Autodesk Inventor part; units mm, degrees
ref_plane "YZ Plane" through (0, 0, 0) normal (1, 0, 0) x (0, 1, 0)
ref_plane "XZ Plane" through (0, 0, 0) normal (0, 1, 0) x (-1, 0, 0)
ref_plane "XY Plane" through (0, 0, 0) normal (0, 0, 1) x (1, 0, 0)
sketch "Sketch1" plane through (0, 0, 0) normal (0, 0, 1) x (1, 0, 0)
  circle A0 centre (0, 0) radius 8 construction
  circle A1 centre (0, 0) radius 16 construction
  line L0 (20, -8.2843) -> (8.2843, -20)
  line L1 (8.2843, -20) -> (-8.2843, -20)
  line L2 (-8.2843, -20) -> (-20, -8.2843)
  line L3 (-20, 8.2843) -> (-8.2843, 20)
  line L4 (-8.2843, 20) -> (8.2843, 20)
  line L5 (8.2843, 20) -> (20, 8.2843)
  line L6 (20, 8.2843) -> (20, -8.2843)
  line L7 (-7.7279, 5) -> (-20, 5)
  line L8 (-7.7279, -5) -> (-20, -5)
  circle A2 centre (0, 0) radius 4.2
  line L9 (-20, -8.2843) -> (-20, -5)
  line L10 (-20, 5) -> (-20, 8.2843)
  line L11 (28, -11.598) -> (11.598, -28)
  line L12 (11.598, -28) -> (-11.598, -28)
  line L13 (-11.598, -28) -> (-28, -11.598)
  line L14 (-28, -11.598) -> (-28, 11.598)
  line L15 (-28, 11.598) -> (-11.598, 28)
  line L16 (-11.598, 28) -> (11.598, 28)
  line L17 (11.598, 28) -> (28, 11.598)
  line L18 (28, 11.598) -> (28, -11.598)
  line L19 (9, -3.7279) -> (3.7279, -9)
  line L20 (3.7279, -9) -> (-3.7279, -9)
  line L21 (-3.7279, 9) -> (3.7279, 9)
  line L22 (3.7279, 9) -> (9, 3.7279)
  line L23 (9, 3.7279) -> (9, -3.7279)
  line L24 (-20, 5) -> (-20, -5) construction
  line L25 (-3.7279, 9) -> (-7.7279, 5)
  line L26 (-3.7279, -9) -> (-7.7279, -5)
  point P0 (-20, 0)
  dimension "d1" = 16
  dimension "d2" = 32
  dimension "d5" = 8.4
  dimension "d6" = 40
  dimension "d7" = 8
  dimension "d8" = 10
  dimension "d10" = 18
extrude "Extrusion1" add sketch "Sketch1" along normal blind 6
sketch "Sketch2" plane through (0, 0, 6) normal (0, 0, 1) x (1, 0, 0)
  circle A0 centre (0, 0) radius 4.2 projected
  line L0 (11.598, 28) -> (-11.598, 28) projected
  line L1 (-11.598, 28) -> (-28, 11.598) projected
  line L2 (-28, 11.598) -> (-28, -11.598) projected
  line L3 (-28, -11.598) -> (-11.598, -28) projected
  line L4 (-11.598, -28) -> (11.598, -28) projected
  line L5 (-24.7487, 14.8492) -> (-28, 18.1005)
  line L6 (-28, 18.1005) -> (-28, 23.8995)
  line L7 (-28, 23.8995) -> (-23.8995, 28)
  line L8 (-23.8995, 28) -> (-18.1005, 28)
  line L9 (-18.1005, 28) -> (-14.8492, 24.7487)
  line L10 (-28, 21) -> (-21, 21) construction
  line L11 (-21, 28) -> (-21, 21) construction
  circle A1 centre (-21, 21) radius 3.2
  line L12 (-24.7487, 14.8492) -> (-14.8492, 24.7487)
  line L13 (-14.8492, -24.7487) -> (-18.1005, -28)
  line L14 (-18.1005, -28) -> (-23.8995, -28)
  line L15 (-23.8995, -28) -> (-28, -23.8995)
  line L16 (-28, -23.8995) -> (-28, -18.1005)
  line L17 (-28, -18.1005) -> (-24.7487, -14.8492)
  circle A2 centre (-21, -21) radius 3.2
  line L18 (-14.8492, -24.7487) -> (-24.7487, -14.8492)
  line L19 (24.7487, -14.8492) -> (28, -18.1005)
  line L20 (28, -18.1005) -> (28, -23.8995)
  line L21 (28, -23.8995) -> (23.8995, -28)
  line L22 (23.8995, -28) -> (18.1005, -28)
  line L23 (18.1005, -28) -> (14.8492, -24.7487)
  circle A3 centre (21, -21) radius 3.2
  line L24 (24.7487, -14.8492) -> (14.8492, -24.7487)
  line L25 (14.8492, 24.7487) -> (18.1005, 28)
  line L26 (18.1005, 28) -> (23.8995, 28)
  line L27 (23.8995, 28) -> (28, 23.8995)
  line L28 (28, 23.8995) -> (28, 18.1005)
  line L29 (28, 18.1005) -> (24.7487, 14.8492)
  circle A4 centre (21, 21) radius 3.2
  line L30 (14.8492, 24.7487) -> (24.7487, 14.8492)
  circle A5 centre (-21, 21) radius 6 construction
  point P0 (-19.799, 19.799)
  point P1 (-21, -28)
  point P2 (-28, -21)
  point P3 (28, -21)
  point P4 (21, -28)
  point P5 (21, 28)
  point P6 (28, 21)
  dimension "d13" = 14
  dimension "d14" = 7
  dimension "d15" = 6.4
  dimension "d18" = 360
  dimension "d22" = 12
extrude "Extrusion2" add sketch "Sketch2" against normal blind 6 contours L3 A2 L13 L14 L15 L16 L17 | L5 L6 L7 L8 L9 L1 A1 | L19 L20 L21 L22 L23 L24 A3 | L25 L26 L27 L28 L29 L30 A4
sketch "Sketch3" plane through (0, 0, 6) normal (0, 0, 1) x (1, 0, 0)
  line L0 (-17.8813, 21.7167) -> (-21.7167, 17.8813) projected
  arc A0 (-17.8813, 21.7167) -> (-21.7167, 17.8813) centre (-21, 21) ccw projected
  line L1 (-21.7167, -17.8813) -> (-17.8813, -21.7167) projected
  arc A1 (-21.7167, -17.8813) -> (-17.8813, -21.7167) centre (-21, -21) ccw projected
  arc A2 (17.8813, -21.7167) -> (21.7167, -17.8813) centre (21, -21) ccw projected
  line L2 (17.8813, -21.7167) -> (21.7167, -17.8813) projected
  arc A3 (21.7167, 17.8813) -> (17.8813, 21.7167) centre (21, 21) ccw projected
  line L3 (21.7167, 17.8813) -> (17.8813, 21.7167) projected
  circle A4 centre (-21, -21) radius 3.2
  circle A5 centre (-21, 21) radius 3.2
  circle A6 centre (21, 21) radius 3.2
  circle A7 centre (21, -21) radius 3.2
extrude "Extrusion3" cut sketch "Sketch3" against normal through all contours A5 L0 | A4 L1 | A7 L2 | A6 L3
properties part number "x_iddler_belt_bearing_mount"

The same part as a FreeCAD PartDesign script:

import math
import FreeCAD as App
import Part
import Sketcher

V = App.Vector
Q = App.Units.Quantity

doc = App.newDocument("Part")
body = doc.addObject("PartDesign::Body", "Body")

sketch1 = body.newObject("Sketcher::SketchObject", "Sketch")
sketch1.AttachmentSupport = (doc.getObject("XY_Plane"), [""])
sketch1.MapMode = "FlatFace"
sketch1.addGeometry([
    Part.LineSegment(V(11.6, -28, 0), V(28, -11.6, 0)),
    Part.LineSegment(V(28, -11.6, 0), V(28, 11.6, 0)),
    Part.LineSegment(V(28, 11.6, 0), V(11.6, 28, 0)),
    Part.LineSegment(V(11.6, 28, 0), V(-11.6, 28, 0)),
    Part.LineSegment(V(-11.6, 28, 0), V(-28, 11.6, 0)),
    Part.LineSegment(V(-28, 11.6, 0), V(-28, -11.6, 0)),
    Part.LineSegment(V(-28, -11.6, 0), V(-11.6, -28, 0)),
    Part.LineSegment(V(-11.6, -28, 0), V(11.6, -28, 0)),
    Part.LineSegment(V(20, 8.3, 0), V(20, -8.3, 0)),
    Part.LineSegment(V(20, -8.3, 0), V(8.3, -20, 0)),
    Part.LineSegment(V(8.3, -20, 0), V(-8.3, -20, 0)),
    Part.LineSegment(V(-8.3, -20, 0), V(-20, -8.3, 0)),
    Part.LineSegment(V(-20, -8.3, 0), V(-20, -5, 0)),
    Part.LineSegment(V(-20, -5, 0), V(-7.7, -5, 0)),
    Part.LineSegment(V(-7.7, -5, 0), V(-3.7, -9, 0)),
    Part.LineSegment(V(-3.7, -9, 0), V(3.7, -9, 0)),
    Part.LineSegment(V(3.7, -9, 0), V(9, -3.7, 0)),
    Part.LineSegment(V(9, -3.7, 0), V(9, 3.7, 0)),
    Part.LineSegment(V(9, 3.7, 0), V(3.7, 9, 0)),
    Part.LineSegment(V(3.7, 9, 0), V(-3.7, 9, 0)),
    Part.LineSegment(V(-3.7, 9, 0), V(-7.7, 5, 0)),
    Part.LineSegment(V(-7.7, 5, 0), V(-20, 5, 0)),
    Part.LineSegment(V(-20, 5, 0), V(-20, 8.3, 0)),
    Part.LineSegment(V(-20, 8.3, 0), V(-8.3, 20, 0)),
    Part.LineSegment(V(-8.3, 20, 0), V(8.3, 20, 0)),
    Part.LineSegment(V(8.3, 20, 0), V(20, 8.3, 0)),
    Part.Circle(V(0, 0, 0), V(0, 0, 1), 4.2),
], False)
sketch1.addConstraint([
    Sketcher.Constraint("Coincident", 0, 2, 1, 1),
    Sketcher.Constraint("Coincident", 1, 2, 2, 1),
    Sketcher.Constraint("Coincident", 2, 2, 3, 1),
    Sketcher.Constraint("Coincident", 3, 2, 4, 1),
    Sketcher.Constraint("Coincident", 4, 2, 5, 1),
    Sketcher.Constraint("Coincident", 5, 2, 6, 1),
    Sketcher.Constraint("Coincident", 6, 2, 7, 1),
    Sketcher.Constraint("Coincident", 7, 2, 0, 1),
    Sketcher.Constraint("Coincident", 8, 2, 9, 1),
    Sketcher.Constraint("Coincident", 9, 2, 10, 1),
    Sketcher.Constraint("Coincident", 10, 2, 11, 1),
    Sketcher.Constraint("Coincident", 11, 2, 12, 1),
    Sketcher.Constraint("Coincident", 12, 2, 13, 1),
    Sketcher.Constraint("Coincident", 13, 2, 14, 1),
    Sketcher.Constraint("Coincident", 14, 2, 15, 1),
    Sketcher.Constraint("Coincident", 15, 2, 16, 1),
    Sketcher.Constraint("Coincident", 16, 2, 17, 1),
    Sketcher.Constraint("Coincident", 17, 2, 18, 1),
    Sketcher.Constraint("Coincident", 18, 2, 19, 1),
    Sketcher.Constraint("Coincident", 19, 2, 20, 1),
    Sketcher.Constraint("Coincident", 20, 2, 21, 1),
    Sketcher.Constraint("Coincident", 21, 2, 22, 1),
    Sketcher.Constraint("Coincident", 22, 2, 23, 1),
    Sketcher.Constraint("Coincident", 23, 2, 24, 1),
    Sketcher.Constraint("Coincident", 24, 2, 25, 1),
    Sketcher.Constraint("Coincident", 25, 2, 8, 1),
    Sketcher.Constraint("Vertical", 1),
    Sketcher.Constraint("Horizontal", 3),
    Sketcher.Constraint("Vertical", 5),
    Sketcher.Constraint("Horizontal", 7),
    Sketcher.Constraint("Vertical", 8),
    Sketcher.Constraint("Horizontal", 10),
    Sketcher.Constraint("Vertical", 12),
    Sketcher.Constraint("Horizontal", 13),
    Sketcher.Constraint("Horizontal", 15),
    Sketcher.Constraint("Vertical", 17),
    Sketcher.Constraint("Horizontal", 19),
    Sketcher.Constraint("Horizontal", 21),
    Sketcher.Constraint("Vertical", 22),
    Sketcher.Constraint("Horizontal", 24),
    Sketcher.Constraint("Coincident", 26, 3, -1, 1),
    Sketcher.Constraint("Symmetric", 0, 2, 4, 2, -1, 1),
    Sketcher.Constraint("Symmetric", 2, 2, 6, 2, -1, 1),
    Sketcher.Constraint("Symmetric", 14, 2, 18, 2, -1, 1),
    Sketcher.Constraint("Symmetric", 8, 2, 22, 2, -1, 1),
    Sketcher.Constraint("Symmetric", 9, 2, 23, 2, -1, 1),
    Sketcher.Constraint("Symmetric", 11, 2, 25, 2, -1, 1),
    Sketcher.Constraint("Symmetric", 13, 2, 20, 2, -1),
    Sketcher.Constraint("Perpendicular", 0, 2),
    Sketcher.Constraint("Perpendicular", 2, 4),
    Sketcher.Constraint("Perpendicular", 4, 6),
    Sketcher.Constraint("Perpendicular", 6, 9),
    Sketcher.Constraint("Perpendicular", 9, 11),
    Sketcher.Constraint("Parallel", 11, 14),
    Sketcher.Constraint("Perpendicular", 14, 16),
    Sketcher.Constraint("Perpendicular", 16, 18),
    Sketcher.Constraint("Perpendicular", 18, 20),
    Sketcher.Constraint("Perpendicular", 23, 25),
    Sketcher.Constraint("Horizontal", 1, 2, 4, 2),
    Sketcher.Constraint("Horizontal", 8, 2, 11, 2),
    Sketcher.Constraint("Vertical", 3, 2, 6, 2),
    Sketcher.Constraint("Vertical", 15, 2, 18, 2),
    Sketcher.Constraint("Equal", 7, 1),
    Sketcher.Constraint("Equal", 24, 8),
    Sketcher.Constraint("Equal", 19, 17),
    Sketcher.Constraint("Diameter", 26, Q("8.4 mm")),
    Sketcher.Constraint("DistanceX", 8, 2, 0, 2, Q("8 mm")),
    Sketcher.Constraint("DistanceY", 15, 2, 18, 2, Q("18 mm")),
    Sketcher.Constraint("DistanceY", 13, 2, 20, 2, Q("10 mm")),
    Sketcher.Constraint("DistanceX", -1, 1, 0, 2, Q("28 mm")),
    Sketcher.Constraint("DistanceX", 3, 2, 3, 1, Q("23.196 mm")),
    Sketcher.Constraint("DistanceX", 13, 1, 13, 2, Q("12.272 mm")),
    Sketcher.Constraint("DistanceX", 10, 2, 10, 1, Q("16.5686 mm")),
])
pad1 = body.newObject("PartDesign::Pad", "Pad")
pad1.Profile = sketch1
pad1.Length = 6

sketch2 = body.newObject("Sketcher::SketchObject", "Sketch001")
sketch2.AttachmentSupport = (doc.getObject("XY_Plane"), [""])
sketch2.MapMode = "FlatFace"
sketch2.AttachmentOffset = App.Placement(V(0, 0, 6), App.Rotation())
sketch2.addGeometry([
    Part.LineSegment(V(-21.7, -17.9, 0), V(-24.7, -14.8, 0)),
    Part.LineSegment(V(-24.7, -14.8, 0), V(-28, -18.1, 0)),
    Part.LineSegment(V(-28, -18.1, 0), V(-28, -23.9, 0)),
    Part.LineSegment(V(-28, -23.9, 0), V(-23.9, -28, 0)),
    Part.LineSegment(V(-23.9, -28, 0), V(-18.1, -28, 0)),
    Part.LineSegment(V(-18.1, -28, 0), V(-14.8, -24.7, 0)),
    Part.LineSegment(V(-14.8, -24.7, 0), V(-17.9, -21.7, 0)),
    Part.ArcOfCircle(Part.Circle(V(-21, -21, 0), V(0, 0, 1), 3.2), math.radians(103), math.radians(347)),
    Part.LineSegment(V(-28, 18.1, 0), V(-24.7, 14.8, 0)),
    Part.LineSegment(V(-24.7, 14.8, 0), V(-21.7, 17.9, 0)),
    Part.ArcOfCircle(Part.Circle(V(-21, 21, 0), V(0, 0, 1), 3.2), math.radians(13), math.radians(257)),
    Part.LineSegment(V(-17.9, 21.7, 0), V(-14.8, 24.7, 0)),
    Part.LineSegment(V(-14.8, 24.7, 0), V(-18.1, 28, 0)),
    Part.LineSegment(V(-18.1, 28, 0), V(-23.9, 28, 0)),
    Part.LineSegment(V(-23.9, 28, 0), V(-28, 23.9, 0)),
    Part.LineSegment(V(-28, 23.9, 0), V(-28, 18.1, 0)),
    Part.LineSegment(V(28, -18.1, 0), V(24.7, -14.8, 0)),
    Part.LineSegment(V(24.7, -14.8, 0), V(21.7, -17.9, 0)),
    Part.ArcOfCircle(Part.Circle(V(21, -21, 0), V(0, 0, 1), 3.2), math.radians(-167), math.radians(77)),
    Part.LineSegment(V(17.9, -21.7, 0), V(14.8, -24.7, 0)),
    Part.LineSegment(V(14.8, -24.7, 0), V(18.1, -28, 0)),
    Part.LineSegment(V(18.1, -28, 0), V(23.9, -28, 0)),
    Part.LineSegment(V(23.9, -28, 0), V(28, -23.9, 0)),
    Part.LineSegment(V(28, -23.9, 0), V(28, -18.1, 0)),
    Part.LineSegment(V(18.1, 28, 0), V(14.8, 24.7, 0)),
    Part.LineSegment(V(14.8, 24.7, 0), V(17.9, 21.7, 0)),
    Part.ArcOfCircle(Part.Circle(V(21, 21, 0), V(0, 0, 1), 3.2), math.radians(-77), math.radians(167)),
    Part.LineSegment(V(21.7, 17.9, 0), V(24.7, 14.8, 0)),
    Part.LineSegment(V(24.7, 14.8, 0), V(28, 18.1, 0)),
    Part.LineSegment(V(28, 18.1, 0), V(28, 23.9, 0)),
    Part.LineSegment(V(28, 23.9, 0), V(23.9, 28, 0)),
    Part.LineSegment(V(23.9, 28, 0), V(18.1, 28, 0)),
], False)
sketch2.addConstraint([
    Sketcher.Constraint("Coincident", 0, 2, 1, 1),
    Sketcher.Constraint("Coincident", 1, 2, 2, 1),
    Sketcher.Constraint("Coincident", 2, 2, 3, 1),
    Sketcher.Constraint("Coincident", 3, 2, 4, 1),
    Sketcher.Constraint("Coincident", 4, 2, 5, 1),
    Sketcher.Constraint("Coincident", 5, 2, 6, 1),
    Sketcher.Constraint("Coincident", 6, 2, 7, 2),
    Sketcher.Constraint("Coincident", 7, 1, 0, 1),
    Sketcher.Constraint("Coincident", 8, 2, 9, 1),
    Sketcher.Constraint("Coincident", 9, 2, 10, 2),
    Sketcher.Constraint("Coincident", 10, 1, 11, 1),
    Sketcher.Constraint("Coincident", 11, 2, 12, 1),
    Sketcher.Constraint("Coincident", 12, 2, 13, 1),
    Sketcher.Constraint("Coincident", 13, 2, 14, 1),
    Sketcher.Constraint("Coincident", 14, 2, 15, 1),
    Sketcher.Constraint("Coincident", 15, 2, 8, 1),
    Sketcher.Constraint("Coincident", 16, 2, 17, 1),
    Sketcher.Constraint("Coincident", 17, 2, 18, 2),
    Sketcher.Constraint("Coincident", 18, 1, 19, 1),
    Sketcher.Constraint("Coincident", 19, 2, 20, 1),
    Sketcher.Constraint("Coincident", 20, 2, 21, 1),
    Sketcher.Constraint("Coincident", 21, 2, 22, 1),
    Sketcher.Constraint("Coincident", 22, 2, 23, 1),
    Sketcher.Constraint("Coincident", 23, 2, 16, 1),
    Sketcher.Constraint("Coincident", 24, 2, 25, 1),
    Sketcher.Constraint("Coincident", 25, 2, 26, 2),
    Sketcher.Constraint("Coincident", 26, 1, 27, 1),
    Sketcher.Constraint("Coincident", 27, 2, 28, 1),
    Sketcher.Constraint("Coincident", 28, 2, 29, 1),
    Sketcher.Constraint("Coincident", 29, 2, 30, 1),
    Sketcher.Constraint("Coincident", 30, 2, 31, 1),
    Sketcher.Constraint("Coincident", 31, 2, 24, 1),
    Sketcher.Constraint("Vertical", 2),
    Sketcher.Constraint("Horizontal", 4),
    Sketcher.Constraint("Horizontal", 13),
    Sketcher.Constraint("Vertical", 15),
    Sketcher.Constraint("Horizontal", 21),
    Sketcher.Constraint("Vertical", 23),
    Sketcher.Constraint("Vertical", 29),
    Sketcher.Constraint("Horizontal", 31),
    Sketcher.Constraint("Equal", 7, 10),
    Sketcher.Constraint("Equal", 10, 18),
    Sketcher.Constraint("Equal", 18, 26),
    Sketcher.Constraint("Symmetric", 10, 3, 18, 3, -1, 1),
    Sketcher.Constraint("Symmetric", 7, 3, 26, 3, -1, 1),
    Sketcher.Constraint("Symmetric", 8, 2, 16, 2, -1, 1),
    Sketcher.Constraint("Symmetric", 11, 2, 19, 2, -1, 1),
    Sketcher.Constraint("Symmetric", 12, 2, 20, 2, -1, 1),
    Sketcher.Constraint("Symmetric", 14, 2, 22, 2, -1, 1),
    Sketcher.Constraint("Symmetric", 5, 2, 24, 2, -1, 1),
    Sketcher.Constraint("Symmetric", 0, 2, 27, 2, -1, 1),
    Sketcher.Constraint("Symmetric", 1, 2, 28, 2, -1, 1),
    Sketcher.Constraint("Symmetric", 3, 2, 30, 2, -1, 1),
    Sketcher.Constraint("Symmetric", 7, 3, 18, 3, -2),
    Sketcher.Constraint("Symmetric", 0, 2, 16, 2, -2),
    Sketcher.Constraint("Symmetric", 5, 2, 19, 2, -2),
    Sketcher.Constraint("Symmetric", 4, 2, 20, 2, -2),
    Sketcher.Constraint("Symmetric", 2, 2, 22, 2, -2),
    Sketcher.Constraint("Perpendicular", 0, 1),
    Sketcher.Constraint("Perpendicular", 1, 3),
    Sketcher.Constraint("Perpendicular", 3, 5),
    Sketcher.Constraint("Perpendicular", 5, 6),
    Sketcher.Constraint("Parallel", 6, 8),
    Sketcher.Constraint("Perpendicular", 8, 9),
    Sketcher.Constraint("Parallel", 9, 11),
    Sketcher.Constraint("Perpendicular", 11, 12),
    Sketcher.Constraint("Perpendicular", 12, 14),
    Sketcher.Constraint("Perpendicular", 14, 16),
    Sketcher.Constraint("Perpendicular", 16, 17),
    Sketcher.Constraint("Parallel", 17, 19),
    Sketcher.Constraint("Perpendicular", 20, 22),
    Sketcher.Constraint("Parallel", 22, 24),
    Sketcher.Constraint("Perpendicular", 24, 25),
    Sketcher.Constraint("Parallel", 25, 27),
    Sketcher.Constraint("Perpendicular", 28, 30),
    Sketcher.Constraint("Equal", 31, 2),
    Sketcher.Constraint("Equal", 1, 5),
    Sketcher.Constraint("Equal", 0, 6),
    Sketcher.Constraint("Radius", 7, Q("3.2 mm")),
    Sketcher.Constraint("DistanceX", 1, 2, 7, 3, Q("7 mm")),
    Sketcher.Constraint("DistanceX", 7, 3, -1, 1, Q("21 mm")),
    Sketcher.Constraint("DistanceY", 7, 3, -1, 1, Q("21 mm")),
    Sketcher.Constraint("DistanceX", 4, 1, 4, 2, Q("5.799 mm")),
    Sketcher.Constraint("DistanceX", 6, 2, 16, 2, Q("42.63 mm")),
    Sketcher.Constraint("Distance", 0, Q("4.288 mm")),
])
pad2 = body.newObject("PartDesign::Pad", "Pad001")
pad2.Profile = sketch2
pad2.Length = 6
pad2.Reversed = True

sketch3 = body.newObject("Sketcher::SketchObject", "Sketch002")
sketch3.AttachmentSupport = (doc.getObject("XY_Plane"), [""])
sketch3.MapMode = "FlatFace"
sketch3.AttachmentOffset = App.Placement(V(0, 0, 6), App.Rotation())
sketch3.addGeometry([
    Part.ArcOfCircle(Part.Circle(V(-21, 21, 0), V(0, 0, 1), 3.2), math.radians(-103), math.radians(13)),
    Part.LineSegment(V(-21.7, 17.9, 0), V(-17.9, 21.7, 0)),
    Part.ArcOfCircle(Part.Circle(V(-21, -21, 0), V(0, 0, 1), 3.2), math.radians(-13), math.radians(103)),
    Part.LineSegment(V(-17.9, -21.7, 0), V(-21.7, -17.9, 0)),
    Part.ArcOfCircle(Part.Circle(V(21, -21, 0), V(0, 0, 1), 3.2), math.radians(77), math.radians(193)),
    Part.LineSegment(V(21.7, -17.9, 0), V(17.9, -21.7, 0)),
    Part.ArcOfCircle(Part.Circle(V(21, 21, 0), V(0, 0, 1), 3.2), math.radians(167), math.radians(283)),
    Part.LineSegment(V(17.9, 21.7, 0), V(21.7, 17.9, 0)),
], False)
sketch3.addConstraint([
    Sketcher.Constraint("Coincident", 0, 1, 1, 1),
    Sketcher.Constraint("Coincident", 1, 2, 0, 2),
    Sketcher.Constraint("Coincident", 2, 1, 3, 1),
    Sketcher.Constraint("Coincident", 3, 2, 2, 2),
    Sketcher.Constraint("Coincident", 4, 1, 5, 1),
    Sketcher.Constraint("Coincident", 5, 2, 4, 2),
    Sketcher.Constraint("Coincident", 6, 1, 7, 1),
    Sketcher.Constraint("Coincident", 7, 2, 6, 2),
    Sketcher.Constraint("Equal", 0, 2),
    Sketcher.Constraint("Equal", 2, 4),
    Sketcher.Constraint("Equal", 4, 6),
    Sketcher.Constraint("Symmetric", 0, 3, 4, 3, -1, 1),
    Sketcher.Constraint("Symmetric", 2, 3, 6, 3, -1, 1),
    Sketcher.Constraint("Symmetric", 2, 3, 4, 3, -2),
    Sketcher.Constraint("Perpendicular", 1, 3),
    Sketcher.Constraint("Perpendicular", 3, 5),
    Sketcher.Constraint("Perpendicular", 5, 7),
    Sketcher.Constraint("Horizontal", 3, 2, 4, 1),
    Sketcher.Constraint("Horizontal", 2, 1, 5, 2),
    Sketcher.Constraint("Horizontal", 1, 2, 6, 1),
    Sketcher.Constraint("Vertical", 1, 2, 2, 1),
    Sketcher.Constraint("Radius", 0, Q("3.2 mm")),
    Sketcher.Constraint("DistanceX", 0, 3, -1, 1, Q("21 mm")),
    Sketcher.Constraint("DistanceY", -1, 1, 0, 3, Q("21 mm")),
    Sketcher.Constraint("Distance", 1, Q("5.424 mm")),
])
pocket1 = body.newObject("PartDesign::Pocket", "Pocket")
pocket1.Profile = sketch3
pocket1.Type = "ThroughAll"

doc.recompute()
